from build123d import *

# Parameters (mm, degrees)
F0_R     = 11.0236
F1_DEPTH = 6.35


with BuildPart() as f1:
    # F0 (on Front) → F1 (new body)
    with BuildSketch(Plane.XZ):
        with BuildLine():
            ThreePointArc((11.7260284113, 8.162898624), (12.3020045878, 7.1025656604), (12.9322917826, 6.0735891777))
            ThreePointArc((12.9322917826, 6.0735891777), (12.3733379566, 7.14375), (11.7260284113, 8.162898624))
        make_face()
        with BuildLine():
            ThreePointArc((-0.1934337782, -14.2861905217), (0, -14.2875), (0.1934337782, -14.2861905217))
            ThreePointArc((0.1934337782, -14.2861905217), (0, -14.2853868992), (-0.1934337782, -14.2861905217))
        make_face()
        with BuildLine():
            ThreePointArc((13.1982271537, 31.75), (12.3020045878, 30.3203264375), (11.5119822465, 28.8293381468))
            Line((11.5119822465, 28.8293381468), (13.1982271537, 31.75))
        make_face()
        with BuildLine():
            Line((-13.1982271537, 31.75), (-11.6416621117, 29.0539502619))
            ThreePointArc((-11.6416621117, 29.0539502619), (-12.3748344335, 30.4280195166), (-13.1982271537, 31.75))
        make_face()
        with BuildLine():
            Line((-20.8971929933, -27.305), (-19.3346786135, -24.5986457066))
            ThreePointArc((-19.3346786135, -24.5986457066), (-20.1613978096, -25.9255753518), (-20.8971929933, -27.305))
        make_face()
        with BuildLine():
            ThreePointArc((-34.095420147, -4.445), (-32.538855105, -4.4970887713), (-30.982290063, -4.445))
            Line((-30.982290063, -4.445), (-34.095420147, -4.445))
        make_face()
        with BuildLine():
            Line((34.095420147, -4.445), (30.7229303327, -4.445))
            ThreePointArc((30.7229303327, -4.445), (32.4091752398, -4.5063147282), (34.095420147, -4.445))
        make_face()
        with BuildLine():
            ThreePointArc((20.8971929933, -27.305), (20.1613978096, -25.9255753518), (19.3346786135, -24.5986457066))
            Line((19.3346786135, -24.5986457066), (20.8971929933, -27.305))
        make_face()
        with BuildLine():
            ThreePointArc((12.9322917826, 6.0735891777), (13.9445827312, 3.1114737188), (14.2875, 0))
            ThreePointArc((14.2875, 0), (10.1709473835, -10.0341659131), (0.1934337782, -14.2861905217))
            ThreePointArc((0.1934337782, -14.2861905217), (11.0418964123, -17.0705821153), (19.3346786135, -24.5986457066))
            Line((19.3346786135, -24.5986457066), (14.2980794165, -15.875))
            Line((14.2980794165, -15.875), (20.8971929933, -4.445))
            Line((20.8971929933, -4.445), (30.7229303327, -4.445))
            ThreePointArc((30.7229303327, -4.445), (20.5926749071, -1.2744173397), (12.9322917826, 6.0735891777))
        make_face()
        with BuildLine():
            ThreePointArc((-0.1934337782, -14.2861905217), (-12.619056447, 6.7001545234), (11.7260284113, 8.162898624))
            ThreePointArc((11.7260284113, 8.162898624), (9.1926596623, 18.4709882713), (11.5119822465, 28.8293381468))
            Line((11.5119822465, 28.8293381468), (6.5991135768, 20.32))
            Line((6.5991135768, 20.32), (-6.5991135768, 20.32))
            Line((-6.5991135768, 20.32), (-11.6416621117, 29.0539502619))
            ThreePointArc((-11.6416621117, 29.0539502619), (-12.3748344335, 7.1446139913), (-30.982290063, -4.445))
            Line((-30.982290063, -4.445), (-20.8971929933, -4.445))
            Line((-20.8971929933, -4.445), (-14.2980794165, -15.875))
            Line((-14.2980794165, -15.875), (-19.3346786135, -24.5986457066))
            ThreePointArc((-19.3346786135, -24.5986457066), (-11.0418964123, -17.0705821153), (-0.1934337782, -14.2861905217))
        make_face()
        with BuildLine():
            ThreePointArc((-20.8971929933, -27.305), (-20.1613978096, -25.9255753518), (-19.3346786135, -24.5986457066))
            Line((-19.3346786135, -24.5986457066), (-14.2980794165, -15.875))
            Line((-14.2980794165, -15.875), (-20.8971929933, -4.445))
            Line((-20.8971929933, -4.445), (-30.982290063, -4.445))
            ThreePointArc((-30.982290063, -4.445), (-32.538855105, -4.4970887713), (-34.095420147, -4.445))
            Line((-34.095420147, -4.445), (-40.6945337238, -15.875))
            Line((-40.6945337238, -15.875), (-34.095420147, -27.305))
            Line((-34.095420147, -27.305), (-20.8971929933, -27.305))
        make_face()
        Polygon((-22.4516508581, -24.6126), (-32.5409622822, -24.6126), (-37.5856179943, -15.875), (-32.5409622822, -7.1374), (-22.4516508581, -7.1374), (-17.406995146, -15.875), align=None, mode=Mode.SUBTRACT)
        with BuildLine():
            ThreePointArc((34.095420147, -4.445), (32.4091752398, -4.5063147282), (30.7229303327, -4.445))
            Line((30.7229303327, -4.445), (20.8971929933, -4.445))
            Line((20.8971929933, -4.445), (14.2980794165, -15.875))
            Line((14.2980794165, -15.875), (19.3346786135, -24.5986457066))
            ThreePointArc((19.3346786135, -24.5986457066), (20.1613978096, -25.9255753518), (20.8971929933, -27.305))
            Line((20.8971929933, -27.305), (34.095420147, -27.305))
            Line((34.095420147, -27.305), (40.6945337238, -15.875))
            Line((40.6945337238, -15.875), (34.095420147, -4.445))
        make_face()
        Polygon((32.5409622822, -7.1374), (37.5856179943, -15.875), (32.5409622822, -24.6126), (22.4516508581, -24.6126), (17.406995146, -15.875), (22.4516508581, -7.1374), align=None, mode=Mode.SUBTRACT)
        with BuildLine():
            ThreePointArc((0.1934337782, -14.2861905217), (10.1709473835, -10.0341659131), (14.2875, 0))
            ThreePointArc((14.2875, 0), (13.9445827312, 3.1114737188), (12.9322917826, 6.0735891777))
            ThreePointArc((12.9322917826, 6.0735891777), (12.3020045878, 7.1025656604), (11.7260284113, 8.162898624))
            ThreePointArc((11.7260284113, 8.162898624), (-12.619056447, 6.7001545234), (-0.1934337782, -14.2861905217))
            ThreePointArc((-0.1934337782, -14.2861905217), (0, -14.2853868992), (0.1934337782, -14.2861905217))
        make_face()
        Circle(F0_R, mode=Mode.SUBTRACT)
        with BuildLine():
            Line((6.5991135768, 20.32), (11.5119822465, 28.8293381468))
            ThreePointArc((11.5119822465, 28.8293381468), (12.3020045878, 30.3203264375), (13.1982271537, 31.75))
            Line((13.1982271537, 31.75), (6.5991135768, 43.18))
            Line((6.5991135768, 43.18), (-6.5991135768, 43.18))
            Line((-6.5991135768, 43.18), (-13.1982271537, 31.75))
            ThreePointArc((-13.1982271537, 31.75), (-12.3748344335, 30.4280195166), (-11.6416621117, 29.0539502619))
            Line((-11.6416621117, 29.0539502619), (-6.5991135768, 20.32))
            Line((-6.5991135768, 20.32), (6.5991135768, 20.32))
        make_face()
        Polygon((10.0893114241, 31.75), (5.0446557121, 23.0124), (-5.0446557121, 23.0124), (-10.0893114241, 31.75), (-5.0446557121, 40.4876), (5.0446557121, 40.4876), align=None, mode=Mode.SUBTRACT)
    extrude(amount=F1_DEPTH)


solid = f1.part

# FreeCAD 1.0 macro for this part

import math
import FreeCAD as App
import Part
import Sketcher

V = App.Vector
Q = App.Units.Quantity


def add_polygon(sketch, points):
    """Adds a closed chain of lines whose ends are joined by coincident constraints."""
    first, n = sketch.GeometryCount, len(points)
    for a, b in zip(points, points[1:] + points[:1]):
        sketch.addGeometry(Part.LineSegment(App.Vector(*a, 0), App.Vector(*b, 0)), False)
    for i in range(n):
        sketch.addConstraint(Sketcher.Constraint("Coincident", first + i, 2, first + (i + 1) % n, 1))

doc = App.newDocument("Part")
params = doc.addObject("Spreadsheet::Sheet", "Params")
for row, (alias, value) in enumerate([
    ("sketch1_diameter", "0.868 in"),
    ("sketch1_radius", "0.5625 in"),
    ("pad1_length", "0.25 in"),
], start=1):
    params.set(f"A{row}", alias)
    params.set(f"B{row}", "=" + value)
    params.setAlias(f"B{row}", alias)

body = doc.addObject("PartDesign::Body", "Body")

# Sketch on XZ plane
sketch1 = doc.addObject("Sketcher::SketchObject", "Sketch")
body.addObject(sketch1)
sketch1.AttachmentSupport = (doc.XZ_Plane, [""])
sketch1.MapMode = "FlatFace"
sketch1.addGeometry(Part.ArcOfCircle(Part.Circle(V(0, 0, 0), V(0, 0, 1), 14.29), math.radians(25.16), math.radians(34.84)), False)  # 0
sketch1.addGeometry(Part.ArcOfCircle(Part.Circle(V(32.41, 18.71, 0), V(0, 0, 1), 23.22), math.radians(154), math.radians(207)), False)  # 1
sketch1.addGeometry(Part.LineSegment(V(11.51, 28.83, 0), V(13.2, 31.75, 0)), False)  # 2
sketch1.addGeometry(Part.LineSegment(V(13.2, 31.75, 0), V(6.6, 43.18, 0)), False)  # 3
sketch1.addGeometry(Part.LineSegment(V(6.6, 43.18, 0), V(-6.6, 43.18, 0)), False)  # 4
sketch1.addGeometry(Part.LineSegment(V(-6.6, 43.18, 0), V(-13.2, 31.75, 0)), False)  # 5
sketch1.addGeometry(Part.LineSegment(V(-13.2, 31.75, 0), V(-11.64, 29.05, 0)), False)  # 6
sketch1.addGeometry(Part.ArcOfCircle(Part.Circle(V(-32.54, 18.79, 0), V(0, 0, 1), 23.28), math.radians(-86), math.radians(26)), False)  # 7
sketch1.addGeometry(Part.LineSegment(V(-30.98, -4.45, 0), V(-34.1, -4.45, 0)), False)  # 8
sketch1.addGeometry(Part.LineSegment(V(-34.1, -4.45, 0), V(-40.69, -15.88, 0)), False)  # 9
sketch1.addGeometry(Part.LineSegment(V(-40.69, -15.88, 0), V(-34.1, -27.3, 0)), False)  # 10
sketch1.addGeometry(Part.LineSegment(V(-34.1, -27.3, 0), V(-20.9, -27.3, 0)), False)  # 11
sketch1.addGeometry(Part.LineSegment(V(-20.9, -27.3, 0), V(-19.33, -24.6, 0)), False)  # 12
sketch1.addGeometry(Part.ArcOfCircle(Part.Circle(V(0, -37.57, 0), V(0, 0, 1), 23.28), math.radians(90), math.radians(146)), False)  # 13
sketch1.addGeometry(Part.ArcOfCircle(Part.Circle(V(0, 0, 0), V(0, 0, 1), 14.29), math.radians(-90.78), math.radians(-89.22)), False)  # 14
sketch1.addGeometry(Part.ArcOfCircle(Part.Circle(V(0, -37.57, 0), V(0, 0, 1), 23.28), math.radians(34), math.radians(90)), False)  # 15
sketch1.addGeometry(Part.LineSegment(V(19.33, -24.6, 0), V(20.9, -27.3, 0)), False)  # 16
sketch1.addGeometry(Part.LineSegment(V(20.9, -27.3, 0), V(34.1, -27.3, 0)), False)  # 17
sketch1.addGeometry(Part.LineSegment(V(34.1, -27.3, 0), V(40.69, -15.88, 0)), False)  # 18
sketch1.addGeometry(Part.LineSegment(V(40.69, -15.88, 0), V(34.1, -4.45, 0)), False)  # 19
sketch1.addGeometry(Part.LineSegment(V(34.1, -4.45, 0), V(30.72, -4.45, 0)), False)  # 20
sketch1.addGeometry(Part.ArcOfCircle(Part.Circle(V(32.41, 18.71, 0), V(0, 0, 1), 23.22), math.radians(-147), math.radians(-94)), False)  # 21
add_polygon(sketch1, [(-22.45, -24.61), (-32.54, -24.61), (-37.59, -15.88), (-32.54, -7.14), (-22.45, -7.14), (-17.41, -15.88)])  # lines 22-27
add_polygon(sketch1, [(37.59, -15.88), (32.54, -24.61), (22.45, -24.61), (17.41, -15.88), (22.45, -7.14), (32.54, -7.14)])  # lines 28-33
sketch1.addGeometry(Part.Circle(V(0, 0, 0), V(0, 0, 1), 11.02), False)  # 34
add_polygon(sketch1, [(5.04, 40.49), (10.09, 31.75), (5.04, 23.01), (-5.04, 23.01), (-10.09, 31.75), (-5.04, 40.49)])  # lines 35-40
sketch1.addConstraint([
    Sketcher.Constraint("Coincident", 0, 2, 1, 2),
    Sketcher.Constraint("Coincident", 1, 1, 2, 1),
    Sketcher.Constraint("Coincident", 2, 2, 3, 1),
    Sketcher.Constraint("Coincident", 3, 2, 4, 1),
    Sketcher.Constraint("Coincident", 4, 2, 5, 1),
    Sketcher.Constraint("Coincident", 5, 2, 6, 1),
    Sketcher.Constraint("Coincident", 6, 2, 7, 2),
    Sketcher.Constraint("Coincident", 7, 1, 8, 1),
    Sketcher.Constraint("Coincident", 8, 2, 9, 1),
    Sketcher.Constraint("Coincident", 9, 2, 10, 1),
    Sketcher.Constraint("Coincident", 10, 2, 11, 1),
    Sketcher.Constraint("Coincident", 11, 2, 12, 1),
    Sketcher.Constraint("Coincident", 12, 2, 13, 2),
    Sketcher.Constraint("Coincident", 13, 1, 14, 1),
    Sketcher.Constraint("Coincident", 14, 2, 15, 2),
    Sketcher.Constraint("Coincident", 15, 1, 16, 1),
    Sketcher.Constraint("Coincident", 16, 2, 17, 1),
    Sketcher.Constraint("Coincident", 17, 2, 18, 1),
    Sketcher.Constraint("Coincident", 18, 2, 19, 1),
    Sketcher.Constraint("Coincident", 19, 2, 20, 1),
    Sketcher.Constraint("Coincident", 20, 2, 21, 2),
    Sketcher.Constraint("Coincident", 21, 1, 0, 1),
    Sketcher.Constraint("Horizontal", 4),
    Sketcher.Constraint("Horizontal", 8),
    Sketcher.Constraint("Horizontal", 11),
    Sketcher.Constraint("Horizontal", 17),
    Sketcher.Constraint("Horizontal", 20),
    Sketcher.Constraint("Horizontal", 22),
    Sketcher.Constraint("Horizontal", 25),
    Sketcher.Constraint("Horizontal", 29),
    Sketcher.Constraint("Horizontal", 32),
    Sketcher.Constraint("Horizontal", 37),
    Sketcher.Constraint("Horizontal", 40),
    Sketcher.Constraint("Coincident", 0, 3, -1, 1),
    Sketcher.Constraint("Coincident", 14, 3, -1, 1),
    Sketcher.Constraint("Coincident", 34, 3, -1, 1),
    Sketcher.Constraint("Coincident", 15, 3, 13, 3),
    Sketcher.Constraint("Coincident", 21, 3, 1, 3),
    Sketcher.Constraint("Equal", 0, 14),
    Sketcher.Constraint("Equal", 13, 15),
    Sketcher.Constraint("Equal", 1, 21),
    Sketcher.Constraint("Symmetric", 2, 2, 5, 2, -2),
    Sketcher.Constraint("Symmetric", 12, 2, 15, 1, -2),
    Sketcher.Constraint("Symmetric", 11, 2, 16, 2, -2),
    Sketcher.Constraint("Symmetric", 9, 2, 18, 2, -2),
    Sketcher.Constraint("Symmetric", 8, 2, 19, 2, -2),
    Sketcher.Constraint("Symmetric", 22, 2, 28, 2, -2),
    Sketcher.Constraint("Symmetric", 26, 2, 30, 2, -2),
    Sketcher.Constraint("Symmetric", 25, 2, 31, 2, -2),
    Sketcher.Constraint("Symmetric", 23, 2, 33, 2, -2),
    Sketcher.Constraint("Symmetric", 35, 2, 38, 2, -2),
    Sketcher.Constraint("Parallel", 2, 5),
    Sketcher.Constraint("Parallel", 3, 6),
    Sketcher.Constraint("Parallel", 5, 9),
    Sketcher.Constraint("Parallel", 6, 10),
    Sketcher.Constraint("Parallel", 9, 12),
    Sketcher.Constraint("Parallel", 10, 16),
    Sketcher.Constraint("Parallel", 12, 18),
    Sketcher.Constraint("Parallel", 19, 23),
    Sketcher.Constraint("Parallel", 18, 24),
    Sketcher.Constraint("Parallel", 23, 26),
    Sketcher.Constraint("Parallel", 24, 27),
    Sketcher.Constraint("Parallel", 26, 30),
    Sketcher.Constraint("Parallel", 30, 33),
    Sketcher.Constraint("Parallel", 33, 35),
    Sketcher.Constraint("Parallel", 31, 36),
    Sketcher.Constraint("Parallel", 35, 38),
    Sketcher.Constraint("Parallel", 36, 39),
    Sketcher.Constraint("Horizontal", 18, 2, 23, 2),
    Sketcher.Constraint("Horizontal", 23, 2, 26, 2),
    Sketcher.Constraint("Horizontal", 5, 2, 35, 2),
    Sketcher.Constraint("Vertical", 8, 2, 10, 2),
    Sketcher.Constraint("Vertical", 22, 2, 24, 2),
    Sketcher.Constraint("Vertical", 37, 2, 39, 2),
    Sketcher.Constraint("Equal", 4, 11),
    Sketcher.Constraint("Equal", 32, 37),
    Sketcher.Constraint("Equal", 5, 9),
    Sketcher.Constraint("Equal", 33, 35),
    Sketcher.Constraint("Diameter", 34, Q("0.868 in")),
    Sketcher.Constraint("Angle", 2, Q("60 deg")),
    Sketcher.Constraint("Radius", 0, Q("0.5625 in")),
    Sketcher.Constraint("DistanceY", -1, 1, 3, 2, Q("1.7 in")),
    Sketcher.Constraint("DistanceY", 10, 2, 8, 2, Q("0.9 in")),
    Sketcher.Constraint("DistanceY", 7, 1, -1, 1, Q("0.175 in")),
    Sketcher.Constraint("DistanceY", 22, 2, -1, 1, Q("0.969 in")),
    Sketcher.Constraint("Radius", 1, 23.217761),
    Sketcher.Constraint("Radius", 7, 23.283406),
    Sketcher.Constraint("Radius", 13, 23.280377),
    Sketcher.Constraint("DistanceX", 8, 2, 8, 1, 3.11313),
    Sketcher.Constraint("DistanceX", 20, 2, 20, 1, 3.37249),
    Sketcher.Constraint("DistanceX", 22, 2, 22, 1, 10.089311),
    Sketcher.Constraint("DistanceY", -1, 1, 0, 2, 8.162899),
    Sketcher.Constraint("DistanceX", 0, 2, 2, 2, 1.472199),
    Sketcher.Constraint("DistanceX", 0, 2, 20, 2, 18.996902),
    Sketcher.Constraint("Distance", 6, 3.11313),
    Sketcher.Constraint("Distance", 12, 3.125029),
    Sketcher.Constraint("DistanceX", 25, 2, -1, 1, 22.451651),
])
sketch1.setExpression("Constraints[96]", "Params.sketch1_diameter")
sketch1.setExpression("Constraints[98]", "Params.sketch1_radius")
pad1 = doc.addObject("PartDesign::Pad", "Pad")
body.addObject(pad1)
pad1.Profile = sketch1
pad1.setExpression("Length", "Params.pad1_length")

doc.recompute()
